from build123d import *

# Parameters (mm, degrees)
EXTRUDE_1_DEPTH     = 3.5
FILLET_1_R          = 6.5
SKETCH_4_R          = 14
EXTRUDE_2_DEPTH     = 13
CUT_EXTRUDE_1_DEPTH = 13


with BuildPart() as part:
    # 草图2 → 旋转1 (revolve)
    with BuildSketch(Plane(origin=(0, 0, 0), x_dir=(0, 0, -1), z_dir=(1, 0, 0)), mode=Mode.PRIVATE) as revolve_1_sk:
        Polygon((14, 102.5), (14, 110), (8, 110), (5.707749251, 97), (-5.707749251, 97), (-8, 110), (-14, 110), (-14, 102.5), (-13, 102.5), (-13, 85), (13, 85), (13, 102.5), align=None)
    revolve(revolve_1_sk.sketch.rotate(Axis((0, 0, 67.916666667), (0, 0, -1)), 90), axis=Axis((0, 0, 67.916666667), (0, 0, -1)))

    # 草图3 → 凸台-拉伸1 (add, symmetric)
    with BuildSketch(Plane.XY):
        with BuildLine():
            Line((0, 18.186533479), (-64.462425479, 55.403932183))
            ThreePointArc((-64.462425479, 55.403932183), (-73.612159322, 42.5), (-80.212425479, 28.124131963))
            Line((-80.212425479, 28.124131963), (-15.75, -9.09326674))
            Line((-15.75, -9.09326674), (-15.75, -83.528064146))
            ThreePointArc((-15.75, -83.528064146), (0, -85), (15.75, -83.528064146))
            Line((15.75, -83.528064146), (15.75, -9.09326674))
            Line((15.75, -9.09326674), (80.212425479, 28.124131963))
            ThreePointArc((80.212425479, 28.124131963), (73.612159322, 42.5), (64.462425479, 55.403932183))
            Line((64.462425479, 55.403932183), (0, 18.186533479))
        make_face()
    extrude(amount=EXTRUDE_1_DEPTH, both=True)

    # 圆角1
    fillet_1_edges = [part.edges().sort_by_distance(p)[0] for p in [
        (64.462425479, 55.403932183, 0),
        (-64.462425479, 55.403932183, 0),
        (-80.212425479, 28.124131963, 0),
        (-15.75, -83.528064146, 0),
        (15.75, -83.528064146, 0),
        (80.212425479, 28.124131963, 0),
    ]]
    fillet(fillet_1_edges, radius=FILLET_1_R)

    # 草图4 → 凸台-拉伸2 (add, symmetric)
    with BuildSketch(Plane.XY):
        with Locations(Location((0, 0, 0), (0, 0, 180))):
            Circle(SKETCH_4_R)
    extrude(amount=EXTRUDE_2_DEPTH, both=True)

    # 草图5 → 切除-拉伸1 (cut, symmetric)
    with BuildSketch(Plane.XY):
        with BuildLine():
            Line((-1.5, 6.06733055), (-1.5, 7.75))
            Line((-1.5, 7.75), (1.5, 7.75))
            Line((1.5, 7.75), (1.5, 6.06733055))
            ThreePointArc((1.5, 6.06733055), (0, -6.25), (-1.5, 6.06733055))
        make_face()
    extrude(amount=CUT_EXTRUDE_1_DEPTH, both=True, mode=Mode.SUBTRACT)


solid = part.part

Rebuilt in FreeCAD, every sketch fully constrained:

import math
import FreeCAD as App
import Part
import Sketcher
from FreeCAD import Vector
Q = App.Units.Quantity


def edges_at(feature, points):
    """Names of the edges that pass closest to the given points."""
    edges = feature.Shape.Edges
    near = lambda p: min(range(len(edges)), key=lambda i: edges[i].distToShape(Part.Vertex(*p))[0])
    return sorted({f"Edge{near(p) + 1}" for p in points})


def add_polygon(sketch, points):
    """Adds a closed chain of lines whose ends are joined by coincident constraints."""
    first, n = sketch.GeometryCount, len(points)
    for a, b in zip(points, points[1:] + points[:1]):
        sketch.addGeometry(Part.LineSegment(App.Vector(*a, 0), App.Vector(*b, 0)), False)
    for i in range(n):
        sketch.addConstraint(Sketcher.Constraint("Coincident", first + i, 2, first + (i + 1) % n, 1))

doc = App.newDocument("Part")
body = doc.addObject("PartDesign::Body", "Body")

# Sketch on YZ plane
sketch1 = body.newObject("Sketcher::SketchObject", "Sketch")
sketch1.AttachmentSupport = (doc.getObject("YZ_Plane"), [""])
sketch1.MapMode = "FlatFace"
add_polygon(sketch1, [(102.5, -14), (110, -14), (110, -8), (97, -5.707749), (97, 5.707749), (110, 8), (110, 14), (102.5, 14), (102.5, 13), (85, 13), (85, -13), (102.5, -13)])  # lines 0-11
sketch1.addConstraint([
    Sketcher.Constraint("Horizontal", 0),
    Sketcher.Constraint("Vertical", 1),
    Sketcher.Constraint("Vertical", 3),
    Sketcher.Constraint("Vertical", 5),
    Sketcher.Constraint("Horizontal", 6),
    Sketcher.Constraint("Vertical", 7),
    Sketcher.Constraint("Horizontal", 8),
    Sketcher.Constraint("Vertical", 9),
    Sketcher.Constraint("Horizontal", 10),
    Sketcher.Constraint("Vertical", 11),
    Sketcher.Constraint("Symmetric", 1, 2, 4, 2, -1),
    Sketcher.Constraint("Symmetric", 7, 2, 10, 2, -1),
    Sketcher.Constraint("Equal", 1, 5),
    Sketcher.Constraint("Equal", 2, 4),
    Sketcher.Constraint("DistanceY", 1, 1, 1, 2, Q("6 mm")),
    Sketcher.Constraint("DistanceY", 7, 2, 7, 1, Q("1 mm")),
    Sketcher.Constraint("DistanceY", 9, 2, 9, 1, Q("26 mm")),
    Sketcher.Constraint("Angle", 2, Q("170 deg")),
    Sketcher.Constraint("DistanceX", 0, 1, 0, 2, Q("7.5 mm")),
    Sketcher.Constraint("DistanceX", 8, 2, 8, 1, Q("17.5 mm")),
    Sketcher.Constraint("DistanceX", -1, 1, 0, 2, Q("110 mm")),
    Sketcher.Constraint("DistanceX", -1, 1, 2, 2, Q("97 mm")),
])
revolution = body.newObject("PartDesign::Revolution", "Revolution")
revolution.Profile = sketch1
revolution.ReferenceAxis = (sketch1, ["V_Axis"])
revolution.Angle = 360

# Sketch on XY plane
sketch2 = body.newObject("Sketcher::SketchObject", "Sketch001")
sketch2.AttachmentSupport = (doc.getObject("XY_Plane"), [""])
sketch2.MapMode = "FlatFace"
sketch2.addGeometry([
    Part.LineSegment(Vector(0, 18.186533, 0), Vector(-64.462425, 55.403932, 0)),  # 0
    Part.ArcOfCircle(Part.Circle(Vector(0, 0, 0), Vector(0, 0, 1), 85), math.radians(139.321719), math.radians(160.678281)),  # 1
    Part.LineSegment(Vector(-80.212425, 28.124132, 0), Vector(-15.75, -9.093267, 0)),  # 2
    Part.LineSegment(Vector(-15.75, -9.093267, 0), Vector(-15.75, -83.528064, 0)),  # 3
    Part.ArcOfCircle(Part.Circle(Vector(0, 0, 0), Vector(0, 0, 1), 85), math.radians(-100.678281), math.radians(-79.321719)),  # 4
    Part.LineSegment(Vector(15.75, -83.528064, 0), Vector(15.75, -9.093267, 0)),  # 5
    Part.LineSegment(Vector(15.75, -9.093267, 0), Vector(80.212425, 28.124132, 0)),  # 6
    Part.ArcOfCircle(Part.Circle(Vector(0, 0, 0), Vector(0, 0, 1), 85), math.radians(19.321719), math.radians(40.678281)),  # 7
    Part.LineSegment(Vector(64.462425, 55.403932, 0), Vector(0, 18.186533, 0)),  # 8
], False)
sketch2.addConstraint([
    Sketcher.Constraint("Coincident", 0, 2, 1, 1),
    Sketcher.Constraint("Coincident", 1, 2, 2, 1),
    Sketcher.Constraint("Coincident", 2, 2, 3, 1),
    Sketcher.Constraint("Coincident", 3, 2, 4, 1),
    Sketcher.Constraint("Coincident", 4, 2, 5, 1),
    Sketcher.Constraint("Coincident", 5, 2, 6, 1),
    Sketcher.Constraint("Coincident", 6, 2, 7, 1),
    Sketcher.Constraint("Coincident", 7, 2, 8, 1),
    Sketcher.Constraint("Coincident", 8, 2, 0, 1),
    Sketcher.Constraint("Vertical", 3),
    Sketcher.Constraint("Vertical", 5),
    Sketcher.Constraint("Coincident", 1, 3, -1, 1),
    Sketcher.Constraint("Coincident", 4, 3, -1, 1),
    Sketcher.Constraint("Coincident", 7, 3, -1, 1),
    Sketcher.Constraint("Equal", 1, 4),
    Sketcher.Constraint("Equal", 4, 7),
    Sketcher.Constraint("Symmetric", 2, 2, 5, 2, -2),
    Sketcher.Constraint("PointOnObject", 8, 2, -2),
    Sketcher.Constraint("Parallel", 0, 2),
    Sketcher.Constraint("Parallel", 6, 8),
    Sketcher.Constraint("Horizontal", 1, 2, 6, 2),
    Sketcher.Constraint("Equal", 0, 2),
    Sketcher.Constraint("Radius", 1, Q("85 mm")),
    Sketcher.Constraint("Angle", 0, Q("150 deg")),
    Sketcher.Constraint("DistanceX", 3, 2, 4, 2, Q("31.5 mm")),
    Sketcher.Constraint("DistanceY", 1, 2, 0, 2, Q("27.2798 mm")),
])
pad1 = body.newObject("PartDesign::Pad", "Pad")
pad1.Profile = sketch2
pad1.Length = 7
pad1.Midplane = True
doc.recompute()

fillet = body.newObject("PartDesign::Fillet", "Fillet")
fillet.Base = (pad1, edges_at(pad1, [
    (64.462, 55.404, 0),
    (-64.462, 55.404, 0),
    (-80.212, 28.124, 0),
    (-15.75, -83.528, 0),
    (15.75, -83.528, 0),
    (80.212, 28.124, 0),
]))
fillet.Radius = 6.5

# Sketch on XY plane
sketch3 = body.newObject("Sketcher::SketchObject", "Sketch002")
sketch3.AttachmentSupport = (doc.getObject("XY_Plane"), [""])
sketch3.MapMode = "FlatFace"
sketch3.addGeometry(Part.Circle(Vector(0, 0, 0), Vector(0, 0, 1), 14), False)
sketch3.addConstraint([
    Sketcher.Constraint("Coincident", 0, 3, -1, 1),
    Sketcher.Constraint("Diameter", 0, Q("28 mm")),
])
pad2 = body.newObject("PartDesign::Pad", "Pad001")
pad2.Profile = sketch3
pad2.Length = 26
pad2.Midplane = True

# Sketch on XY plane
sketch4 = body.newObject("Sketcher::SketchObject", "Sketch003")
sketch4.AttachmentSupport = (doc.getObject("XY_Plane"), [""])
sketch4.MapMode = "FlatFace"
sketch4.addGeometry([
    Part.LineSegment(Vector(-1.5, 7.75, 0), Vector(-1.5, 6.067331, 0)),
    Part.ArcOfCircle(Part.Circle(Vector(0, 0, 0), Vector(0, 0, 1), 6.25), math.radians(103.88654), math.radians(436.11346)),
    Part.LineSegment(Vector(1.5, 6.067331, 0), Vector(1.5, 7.75, 0)),
    Part.LineSegment(Vector(1.5, 7.75, 0), Vector(-1.5, 7.75, 0)),
], False)
sketch4.addConstraint([
    Sketcher.Constraint("Coincident", 0, 2, 1, 1),
    Sketcher.Constraint("Coincident", 1, 2, 2, 1),
    Sketcher.Constraint("Coincident", 2, 2, 3, 1),
    Sketcher.Constraint("Coincident", 3, 2, 0, 1),
    Sketcher.Constraint("Vertical", 0),
    Sketcher.Constraint("Vertical", 2),
    Sketcher.Constraint("Horizontal", 3),
    Sketcher.Constraint("Coincident", 1, 3, -1, 1),
    Sketcher.Constraint("Horizontal", 0, 2, 1, 2),
    Sketcher.Constraint("DistanceX", 3, 2, 3, 1, Q("3 mm")),
    Sketcher.Constraint("Radius", 1, Q("6.25 mm")),
    Sketcher.Constraint("DistanceY", -1, 1, 2, 2, Q("7.75 mm")),
])
pocket1 = body.newObject("PartDesign::Pocket", "Pocket")
pocket1.Profile = sketch4
pocket1.Length = 26
pocket1.Midplane = True

doc.recompute()
